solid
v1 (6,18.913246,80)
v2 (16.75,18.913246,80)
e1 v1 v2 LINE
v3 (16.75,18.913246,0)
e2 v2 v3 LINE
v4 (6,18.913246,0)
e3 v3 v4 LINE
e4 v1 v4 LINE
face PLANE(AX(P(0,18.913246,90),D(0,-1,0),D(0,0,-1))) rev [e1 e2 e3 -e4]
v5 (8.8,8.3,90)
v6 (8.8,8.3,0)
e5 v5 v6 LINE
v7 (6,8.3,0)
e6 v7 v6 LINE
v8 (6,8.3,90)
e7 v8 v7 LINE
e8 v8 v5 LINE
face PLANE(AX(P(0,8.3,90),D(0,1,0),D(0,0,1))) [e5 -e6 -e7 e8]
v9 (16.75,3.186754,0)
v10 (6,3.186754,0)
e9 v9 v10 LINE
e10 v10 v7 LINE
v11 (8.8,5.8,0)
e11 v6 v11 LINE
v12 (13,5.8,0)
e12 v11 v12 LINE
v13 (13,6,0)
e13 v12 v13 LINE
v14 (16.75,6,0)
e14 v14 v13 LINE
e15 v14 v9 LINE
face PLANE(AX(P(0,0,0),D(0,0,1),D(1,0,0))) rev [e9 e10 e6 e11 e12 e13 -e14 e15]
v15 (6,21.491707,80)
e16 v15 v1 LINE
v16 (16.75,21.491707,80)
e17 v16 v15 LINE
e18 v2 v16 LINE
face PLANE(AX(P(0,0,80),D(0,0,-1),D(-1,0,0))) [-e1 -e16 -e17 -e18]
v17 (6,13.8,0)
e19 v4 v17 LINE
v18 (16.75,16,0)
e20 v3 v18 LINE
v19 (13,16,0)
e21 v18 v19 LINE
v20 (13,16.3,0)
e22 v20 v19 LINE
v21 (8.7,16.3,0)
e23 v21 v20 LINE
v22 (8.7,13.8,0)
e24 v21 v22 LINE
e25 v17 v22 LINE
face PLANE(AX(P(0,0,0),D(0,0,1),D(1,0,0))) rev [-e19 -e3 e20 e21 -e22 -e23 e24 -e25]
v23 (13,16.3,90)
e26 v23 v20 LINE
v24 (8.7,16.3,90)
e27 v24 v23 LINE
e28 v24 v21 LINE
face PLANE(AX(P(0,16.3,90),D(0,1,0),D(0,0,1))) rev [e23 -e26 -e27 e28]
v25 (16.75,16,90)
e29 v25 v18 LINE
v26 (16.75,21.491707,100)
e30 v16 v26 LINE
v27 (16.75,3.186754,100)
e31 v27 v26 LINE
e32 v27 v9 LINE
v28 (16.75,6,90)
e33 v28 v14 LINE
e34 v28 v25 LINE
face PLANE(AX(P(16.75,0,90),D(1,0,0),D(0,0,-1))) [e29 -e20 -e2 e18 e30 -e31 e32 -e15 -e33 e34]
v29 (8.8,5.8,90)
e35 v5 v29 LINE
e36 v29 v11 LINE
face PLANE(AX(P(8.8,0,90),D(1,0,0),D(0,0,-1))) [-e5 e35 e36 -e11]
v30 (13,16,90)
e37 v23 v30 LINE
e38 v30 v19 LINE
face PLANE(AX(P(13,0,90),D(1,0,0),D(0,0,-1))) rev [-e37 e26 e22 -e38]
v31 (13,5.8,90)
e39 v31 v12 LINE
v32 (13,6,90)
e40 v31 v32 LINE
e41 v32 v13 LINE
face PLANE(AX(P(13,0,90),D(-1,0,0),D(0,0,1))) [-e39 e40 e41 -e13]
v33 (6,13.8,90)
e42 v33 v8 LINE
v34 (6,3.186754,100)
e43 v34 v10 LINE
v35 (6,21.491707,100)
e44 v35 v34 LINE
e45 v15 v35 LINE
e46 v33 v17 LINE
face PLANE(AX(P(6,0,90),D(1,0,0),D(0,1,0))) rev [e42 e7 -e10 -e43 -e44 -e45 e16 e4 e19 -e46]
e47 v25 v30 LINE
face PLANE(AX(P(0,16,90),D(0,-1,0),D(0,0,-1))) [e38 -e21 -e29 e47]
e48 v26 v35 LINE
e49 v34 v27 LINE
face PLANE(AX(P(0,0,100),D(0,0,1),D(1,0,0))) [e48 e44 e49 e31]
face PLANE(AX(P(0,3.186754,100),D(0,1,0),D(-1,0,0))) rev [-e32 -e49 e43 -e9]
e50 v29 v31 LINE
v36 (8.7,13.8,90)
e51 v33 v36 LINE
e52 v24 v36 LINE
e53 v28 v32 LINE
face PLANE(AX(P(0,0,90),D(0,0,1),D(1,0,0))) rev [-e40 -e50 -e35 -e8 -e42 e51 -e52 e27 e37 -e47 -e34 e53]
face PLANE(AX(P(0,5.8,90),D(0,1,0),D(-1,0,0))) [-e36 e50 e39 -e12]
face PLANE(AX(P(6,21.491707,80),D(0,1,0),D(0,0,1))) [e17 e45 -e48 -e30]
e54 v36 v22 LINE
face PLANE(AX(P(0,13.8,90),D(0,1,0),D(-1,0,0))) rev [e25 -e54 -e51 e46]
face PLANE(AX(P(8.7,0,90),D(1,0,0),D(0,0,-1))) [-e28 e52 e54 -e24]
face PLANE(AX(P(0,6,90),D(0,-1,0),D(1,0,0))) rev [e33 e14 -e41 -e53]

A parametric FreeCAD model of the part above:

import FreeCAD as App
import Part
import Sketcher
Q = App.Units.Quantity

doc = App.newDocument("Part")
body = doc.addObject("PartDesign::Body", "Body")
body.AllowCompound = True

# Sketch on XY plane
sketch1 = body.newObject("Sketcher::SketchObject", "Sketch")
sketch1.AttachmentSupport = (doc.getObject("XY_Plane"), [""])
sketch1.MapMode = "FlatFace"
sketch1.addGeometry(Part.LineSegment(App.Vector(13, 16.3, 0), App.Vector(13, 16, 0)), False)
sketch1.addGeometry(Part.LineSegment(App.Vector(13, 16, 0), App.Vector(16.75, 16, 0)), False)
sketch1.addGeometry(Part.LineSegment(App.Vector(16.75, 16, 0), App.Vector(16.75, 18.913246, 0)), False)
sketch1.addGeometry(Part.LineSegment(App.Vector(16.75, 18.913246, 0), App.Vector(6, 18.913246, 0)), False)
sketch1.addGeometry(Part.LineSegment(App.Vector(6, 18.913246, 0), App.Vector(6, 13.8, 0)), False)
sketch1.addGeometry(Part.LineSegment(App.Vector(6, 13.8, 0), App.Vector(8.7, 13.8, 0)), False)
sketch1.addGeometry(Part.LineSegment(App.Vector(8.7, 13.8, 0), App.Vector(8.7, 16.3, 0)), False)
sketch1.addGeometry(Part.LineSegment(App.Vector(8.7, 16.3, 0), App.Vector(13, 16.3, 0)), False)
sketch1.addGeometry(Part.LineSegment(App.Vector(8.8, 5.8, 0), App.Vector(8.8, 8.3, 0)), False)
sketch1.addGeometry(Part.LineSegment(App.Vector(8.8, 8.3, 0), App.Vector(6, 8.3, 0)), False)
sketch1.addGeometry(Part.LineSegment(App.Vector(6, 8.3, 0), App.Vector(6, 3.186754, 0)), False)
sketch1.addGeometry(Part.LineSegment(App.Vector(6, 3.186754, 0), App.Vector(16.75, 3.186754, 0)), False)
sketch1.addGeometry(Part.LineSegment(App.Vector(16.75, 3.186754, 0), App.Vector(16.75, 6, 0)), False)
sketch1.addGeometry(Part.LineSegment(App.Vector(16.75, 6, 0), App.Vector(13, 6, 0)), False)
sketch1.addGeometry(Part.LineSegment(App.Vector(13, 6, 0), App.Vector(13, 5.8, 0)), False)
sketch1.addGeometry(Part.LineSegment(App.Vector(13, 5.8, 0), App.Vector(8.8, 5.8, 0)), False)
sketch1.addConstraint(Sketcher.Constraint("Coincident", 0, 2, 1, 1))
sketch1.addConstraint(Sketcher.Constraint("Coincident", 1, 2, 2, 1))
sketch1.addConstraint(Sketcher.Constraint("Coincident", 2, 2, 3, 1))
sketch1.addConstraint(Sketcher.Constraint("Coincident", 3, 2, 4, 1))
sketch1.addConstraint(Sketcher.Constraint("Coincident", 4, 2, 5, 1))
sketch1.addConstraint(Sketcher.Constraint("Coincident", 5, 2, 6, 1))
sketch1.addConstraint(Sketcher.Constraint("Coincident", 6, 2, 7, 1))
sketch1.addConstraint(Sketcher.Constraint("Coincident", 7, 2, 0, 1))
sketch1.addConstraint(Sketcher.Constraint("Coincident", 8, 2, 9, 1))
sketch1.addConstraint(Sketcher.Constraint("Coincident", 9, 2, 10, 1))
sketch1.addConstraint(Sketcher.Constraint("Coincident", 10, 2, 11, 1))
sketch1.addConstraint(Sketcher.Constraint("Coincident", 11, 2, 12, 1))
sketch1.addConstraint(Sketcher.Constraint("Coincident", 12, 2, 13, 1))
sketch1.addConstraint(Sketcher.Constraint("Coincident", 13, 2, 14, 1))
sketch1.addConstraint(Sketcher.Constraint("Coincident", 14, 2, 15, 1))
sketch1.addConstraint(Sketcher.Constraint("Coincident", 15, 2, 8, 1))
sketch1.addConstraint(Sketcher.Constraint("Vertical", 0))
sketch1.addConstraint(Sketcher.Constraint("Horizontal", 1))
sketch1.addConstraint(Sketcher.Constraint("Vertical", 2))
sketch1.addConstraint(Sketcher.Constraint("Horizontal", 3))
sketch1.addConstraint(Sketcher.Constraint("Vertical", 4))
sketch1.addConstraint(Sketcher.Constraint("Horizontal", 5))
sketch1.addConstraint(Sketcher.Constraint("Vertical", 6))
sketch1.addConstraint(Sketcher.Constraint("Horizontal", 7))
sketch1.addConstraint(Sketcher.Constraint("Vertical", 8))
sketch1.addConstraint(Sketcher.Constraint("Horizontal", 9))
sketch1.addConstraint(Sketcher.Constraint("Vertical", 10))
sketch1.addConstraint(Sketcher.Constraint("Horizontal", 11))
sketch1.addConstraint(Sketcher.Constraint("Vertical", 12))
sketch1.addConstraint(Sketcher.Constraint("Horizontal", 13))
sketch1.addConstraint(Sketcher.Constraint("Vertical", 14))
sketch1.addConstraint(Sketcher.Constraint("Horizontal", 15))
sketch1.addConstraint(Sketcher.Constraint("Vertical", 4, 2, 9, 2))
sketch1.addConstraint(Sketcher.Constraint("Vertical", 2, 2, 11, 2))
sketch1.addConstraint(Sketcher.Constraint("Vertical", 7, 2, 13, 2))
sketch1.addConstraint(Sketcher.Constraint("Equal", 6, 8))
sketch1.addConstraint(Sketcher.Constraint("Equal", 4, 10))
sketch1.addConstraint(Sketcher.Constraint("DistanceX", 5, 1, 5, 2, Q("2.7 mm")))
sketch1.addConstraint(Sketcher.Constraint("DistanceX", 7, 1, 7, 2, Q("4.3 mm")))
sketch1.addConstraint(Sketcher.Constraint("DistanceX", 9, 2, 9, 1, Q("2.8 mm")))
sketch1.addConstraint(Sketcher.Constraint("DistanceY", 0, 2, 0, 1, Q("0.3 mm")))
sketch1.addConstraint(Sketcher.Constraint("DistanceY", 6, 1, 6, 2, Q("2.5 mm")))
sketch1.addConstraint(Sketcher.Constraint("DistanceY", 14, 2, 14, 1, Q("0.2 mm")))
sketch1.addConstraint(Sketcher.Constraint("DistanceX", -1, 1, 0, 2, Q("13 mm")))
sketch1.addConstraint(Sketcher.Constraint("DistanceY", -1, 1, 0, 2, Q("16 mm")))
sketch1.addConstraint(Sketcher.Constraint("DistanceY", -1, 1, 12, 2, Q("6 mm")))
sketch1.addConstraint(Sketcher.Constraint("DistanceX", 1, 1, 1, 2, Q("3.75 mm")))
sketch1.addConstraint(Sketcher.Constraint("DistanceY", 2, 1, 2, 2, Q("2.913246 mm")))
pad1 = body.newObject("PartDesign::Pad", "Pad")
pad1.Profile = sketch1
pad1.Length = 90

# Sketch on XY plane
sketch2 = body.newObject("Sketcher::SketchObject", "Sketch001")
sketch2.AttachmentSupport = (doc.getObject("XY_Plane"), [""])
sketch2.MapMode = "FlatFace"
sketch2.AttachmentOffset = App.Placement(App.Vector(0, 0, 90), App.Rotation())
sketch2.addGeometry(Part.LineSegment(App.Vector(6, 18.913246, 0), App.Vector(6, 3.186754, 0)), False)
sketch2.addGeometry(Part.LineSegment(App.Vector(6, 3.186754, 0), App.Vector(16.75, 3.186754, 0)), False)
sketch2.addGeometry(Part.LineSegment(App.Vector(16.75, 3.186754, 0), App.Vector(16.75, 18.913246, 0)), False)
sketch2.addGeometry(Part.LineSegment(App.Vector(16.75, 18.913246, 0), App.Vector(6, 18.913246, 0)), False)
sketch2.addConstraint(Sketcher.Constraint("Coincident", 0, 2, 1, 1))
sketch2.addConstraint(Sketcher.Constraint("Coincident", 1, 2, 2, 1))
sketch2.addConstraint(Sketcher.Constraint("Coincident", 2, 2, 3, 1))
sketch2.addConstraint(Sketcher.Constraint("Coincident", 3, 2, 0, 1))
sketch2.addConstraint(Sketcher.Constraint("Vertical", 0))
sketch2.addConstraint(Sketcher.Constraint("Horizontal", 1))
sketch2.addConstraint(Sketcher.Constraint("Vertical", 2))
sketch2.addConstraint(Sketcher.Constraint("Horizontal", 3))
sketch2.addConstraint(Sketcher.Constraint("DistanceX", -1, 1, 0, 2, Q("6 mm")))
sketch2.addConstraint(Sketcher.Constraint("DistanceX", 1, 1, 1, 2, Q("10.75 mm")))
sketch2.addConstraint(Sketcher.Constraint("DistanceY", 0, 2, 0, 1, Q("15.726491 mm")))
sketch2.addConstraint(Sketcher.Constraint("DistanceY", -1, 1, 0, 2, Q("3.186754 mm")))
pad2 = body.newObject("PartDesign::Pad", "Pad001")
pad2.Profile = sketch2
pad2.Length = 10

# Sketch on XY plane
sketch3 = body.newObject("Sketcher::SketchObject", "Sketch002")
sketch3.AttachmentSupport = (doc.getObject("XY_Plane"), [""])
sketch3.MapMode = "FlatFace"
sketch3.AttachmentOffset = App.Placement(App.Vector(0, 0, 100), App.Rotation())
sketch3.addGeometry(Part.LineSegment(App.Vector(6, 21.491707, 0), App.Vector(6, 18.913246, 0)), False)
sketch3.addGeometry(Part.LineSegment(App.Vector(6, 18.913246, 0), App.Vector(16.75, 18.913246, 0)), False)
sketch3.addGeometry(Part.LineSegment(App.Vector(16.75, 18.913246, 0), App.Vector(16.75, 21.491707, 0)), False)
sketch3.addGeometry(Part.LineSegment(App.Vector(16.75, 21.491707, 0), App.Vector(6, 21.491707, 0)), False)
sketch3.addConstraint(Sketcher.Constraint("Coincident", 0, 2, 1, 1))
sketch3.addConstraint(Sketcher.Constraint("Coincident", 1, 2, 2, 1))
sketch3.addConstraint(Sketcher.Constraint("Coincident", 2, 2, 3, 1))
sketch3.addConstraint(Sketcher.Constraint("Coincident", 3, 2, 0, 1))
sketch3.addConstraint(Sketcher.Constraint("Vertical", 0))
sketch3.addConstraint(Sketcher.Constraint("Horizontal", 1))
sketch3.addConstraint(Sketcher.Constraint("Vertical", 2))
sketch3.addConstraint(Sketcher.Constraint("Horizontal", 3))
sketch3.addConstraint(Sketcher.Constraint("DistanceX", -1, 1, 0, 2, Q("6 mm")))
sketch3.addConstraint(Sketcher.Constraint("DistanceX", 1, 1, 1, 2, Q("10.75 mm")))
sketch3.addConstraint(Sketcher.Constraint("DistanceY", 0, 2, 0, 1, Q("2.578461 mm")))
sketch3.addConstraint(Sketcher.Constraint("DistanceY", -1, 1, 0, 2, Q("18.913246 mm")))
pad3 = body.newObject("PartDesign::Pad", "Pad002")
pad3.Profile = sketch3
pad3.Length = 20
pad3.Reversed = True

doc.recompute()
